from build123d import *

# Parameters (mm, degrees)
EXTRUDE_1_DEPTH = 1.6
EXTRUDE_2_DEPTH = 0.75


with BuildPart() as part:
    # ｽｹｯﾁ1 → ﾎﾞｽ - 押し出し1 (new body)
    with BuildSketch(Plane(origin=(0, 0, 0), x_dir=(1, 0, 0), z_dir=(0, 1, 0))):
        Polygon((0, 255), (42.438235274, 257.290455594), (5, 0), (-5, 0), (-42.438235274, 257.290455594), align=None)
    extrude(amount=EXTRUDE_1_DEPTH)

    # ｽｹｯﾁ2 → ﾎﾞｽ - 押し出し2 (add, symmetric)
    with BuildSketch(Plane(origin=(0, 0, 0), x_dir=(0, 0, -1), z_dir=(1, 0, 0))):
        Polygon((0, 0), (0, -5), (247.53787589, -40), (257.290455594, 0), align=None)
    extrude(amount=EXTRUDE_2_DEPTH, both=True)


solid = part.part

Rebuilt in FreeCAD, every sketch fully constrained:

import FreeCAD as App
import Part
import Sketcher

doc = App.newDocument("Part")
params = doc.addObject("Spreadsheet::Sheet", "Params")
for row, (alias, value) in enumerate([
    ("sketch1_width", "10 mm"),
    ("sketch1_length", "260 mm"),
    ("sketch1_length2", "42.5 mm"),
    ("pad1_length", "1.6 mm"),
    ("sketch2_width", "5 mm"),
    ("sketch2_length", "250 mm"),
    ("pad2_length", "1.5 mm"),
], start=1):
    params.set(f"A{row}", alias)
    params.set(f"B{row}", "=" + value)
    params.setAlias(f"B{row}", alias)

body = doc.addObject("PartDesign::Body", "Body")

# Sketch on XZ plane
sketch1 = body.newObject("Sketcher::SketchObject", "Sketch")
sketch1.AttachmentSupport = (doc.getObject("XZ_Plane"), [""])
sketch1.MapMode = "FlatFace"
sketch1.addGeometry(Part.LineSegment(App.Vector(42, -257, 0), App.Vector(0, -255, 0)), False)
sketch1.addGeometry(Part.LineSegment(App.Vector(0, -255, 0), App.Vector(-42, -257, 0)), False)
sketch1.addGeometry(Part.LineSegment(App.Vector(-42, -257, 0), App.Vector(-5, 0, 0)), False)
sketch1.addGeometry(Part.LineSegment(App.Vector(-5, 0, 0), App.Vector(5, 0, 0)), False)
sketch1.addGeometry(Part.LineSegment(App.Vector(5, 0, 0), App.Vector(42, -257, 0)), False)
sketch1.addConstraint(Sketcher.Constraint("Coincident", 0, 2, 1, 1))
sketch1.addConstraint(Sketcher.Constraint("Coincident", 1, 2, 2, 1))
sketch1.addConstraint(Sketcher.Constraint("Coincident", 2, 2, 3, 1))
sketch1.addConstraint(Sketcher.Constraint("Coincident", 3, 2, 4, 1))
sketch1.addConstraint(Sketcher.Constraint("Coincident", 4, 2, 0, 1))
sketch1.addConstraint(Sketcher.Constraint("Horizontal", 3))
sketch1.addConstraint(Sketcher.Constraint("Symmetric", 2, 2, 3, 2, -1, 1))
sketch1.addConstraint(Sketcher.Constraint("Symmetric", 1, 2, 4, 2, -2))
sketch1.addConstraint(Sketcher.Constraint("PointOnObject", 0, 2, -2))
sketch1.addConstraint(Sketcher.Constraint("DistanceX", 3, 1, 3, 2, 10.0))
sketch1.addConstraint(Sketcher.Constraint("Distance", 2, 260.0))
sketch1.addConstraint(Sketcher.Constraint("DistanceY", 0, 2, -1, 1, 255.0))
sketch1.addConstraint(Sketcher.Constraint("Distance", 0, 42.5))
sketch1.setExpression("Constraints[9]", "Params.sketch1_width")
sketch1.setExpression("Constraints[10]", "Params.sketch1_length")
sketch1.setExpression("Constraints[12]", "Params.sketch1_length2")
pad1 = body.newObject("PartDesign::Pad", "Pad")
pad1.Profile = sketch1
pad1.setExpression("Length", "Params.pad1_length")
pad1.Reversed = True

# Sketch on YZ plane
sketch2 = body.newObject("Sketcher::SketchObject", "Sketch001")
sketch2.AttachmentSupport = (doc.getObject("YZ_Plane"), [""])
sketch2.MapMode = "FlatFace"
sketch2.addGeometry(Part.LineSegment(App.Vector(0, 0, 0), App.Vector(-5, 0, 0)), False)
sketch2.addGeometry(Part.LineSegment(App.Vector(-5, 0, 0), App.Vector(-40, -248, 0)), False)
sketch2.addGeometry(Part.LineSegment(App.Vector(-40, -248, 0), App.Vector(0, -257, 0)), False)
sketch2.addGeometry(Part.LineSegment(App.Vector(0, -257, 0), App.Vector(0, 0, 0)), False)
sketch2.addConstraint(Sketcher.Constraint("Coincident", 0, 2, 1, 1))
sketch2.addConstraint(Sketcher.Constraint("Coincident", 1, 2, 2, 1))
sketch2.addConstraint(Sketcher.Constraint("Coincident", 2, 2, 3, 1))
sketch2.addConstraint(Sketcher.Constraint("Coincident", 3, 2, 0, 1))
sketch2.addConstraint(Sketcher.Constraint("Horizontal", 0))
sketch2.addConstraint(Sketcher.Constraint("Vertical", 3))
sketch2.addConstraint(Sketcher.Constraint("Coincident", 3, 2, -1, 1))
sketch2.addConstraint(Sketcher.Constraint("DistanceX", 0, 2, 0, 1, 5.0))
sketch2.addConstraint(Sketcher.Constraint("Distance", 1, 250.0))
sketch2.addConstraint(Sketcher.Constraint("DistanceX", 1, 2, -1, 1, 40.0))
sketch2.addConstraint(Sketcher.Constraint("DistanceY", 3, 1, 3, 2, 257.290456))
sketch2.setExpression("Constraints[7]", "Params.sketch2_width")
sketch2.setExpression("Constraints[8]", "Params.sketch2_length")
pad2 = body.newObject("PartDesign::Pad", "Pad001")
pad2.Profile = sketch2
pad2.setExpression("Length", "Params.pad2_length")
pad2.Midplane = True

doc.recompute()
